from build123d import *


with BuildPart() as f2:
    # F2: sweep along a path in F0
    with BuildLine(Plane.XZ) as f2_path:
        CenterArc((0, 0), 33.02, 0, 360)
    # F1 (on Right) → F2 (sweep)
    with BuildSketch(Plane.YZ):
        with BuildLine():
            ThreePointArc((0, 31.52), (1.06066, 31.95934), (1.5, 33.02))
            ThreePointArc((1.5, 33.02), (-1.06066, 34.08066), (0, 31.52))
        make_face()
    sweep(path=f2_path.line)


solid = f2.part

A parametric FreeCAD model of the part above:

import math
import FreeCAD as App
import Part
import Sketcher

V = App.Vector

doc = App.newDocument("Part")
params = doc.addObject("Spreadsheet::Sheet", "Params")
for row, (alias, value) in enumerate([
    ("sketch1_radius", "1.500001 mm"),
    ("sketch2_diameter", "66.04 mm"),
], start=1):
    params.set(f"A{row}", alias)
    params.set(f"B{row}", "=" + value)
    params.setAlias(f"B{row}", alias)

body = doc.addObject("PartDesign::Body", "Body")

# Sketch on YZ plane
sketch1 = doc.addObject("Sketcher::SketchObject", "Sketch")
body.addObject(sketch1)
sketch1.AttachmentSupport = (doc.YZ_Plane, [""])
sketch1.MapMode = "FlatFace"
sketch1.addGeometry([
    Part.ArcOfCircle(Part.Circle(V(0, 33, 0), V(0, 0, 1), 1.5), math.radians(-90), math.radians(0)),
    Part.ArcOfCircle(Part.Circle(V(0, 33, 0), V(0, 0, 1), 1.5), math.radians(0), math.radians(270)),
], False)
sketch1.addConstraint([
    Sketcher.Constraint("Tangent", 0, 1, 1, 2),
    Sketcher.Constraint("Coincident", 1, 1, 0, 2),
    Sketcher.Constraint("PointOnObject", 0, 3, -2),
    Sketcher.Constraint("PointOnObject", 0, 1, -2),
    Sketcher.Constraint("Horizontal", 0, 3, 1, 1),
    Sketcher.Constraint("Radius", 0, 1.500001),
    Sketcher.Constraint("DistanceY", -1, 1, 0, 3, 33.020001),
])
sketch1.setExpression("Constraints[5]", "Params.sketch1_radius")

# Sketch on XZ plane
sketch2 = doc.addObject("Sketcher::SketchObject", "Sketch001")
body.addObject(sketch2)
sketch2.AttachmentSupport = (doc.XZ_Plane, [""])
sketch2.MapMode = "FlatFace"
sketch2.addGeometry(Part.Circle(V(0, 0, 0), V(0, 0, 1), 33), False)
sketch2.addConstraint([
    Sketcher.Constraint("Coincident", 0, 3, -1, 1),
    Sketcher.Constraint("Diameter", 0, 66.04),
])
sketch2.setExpression("Constraints[1]", "Params.sketch2_diameter")
doc.recompute()

additivepipe = doc.addObject("PartDesign::AdditivePipe", "AdditivePipe")
body.addObject(additivepipe)
additivepipe.Profile = sketch1
additivepipe.Spine = (sketch2, ["Edge1"])

doc.recompute()
